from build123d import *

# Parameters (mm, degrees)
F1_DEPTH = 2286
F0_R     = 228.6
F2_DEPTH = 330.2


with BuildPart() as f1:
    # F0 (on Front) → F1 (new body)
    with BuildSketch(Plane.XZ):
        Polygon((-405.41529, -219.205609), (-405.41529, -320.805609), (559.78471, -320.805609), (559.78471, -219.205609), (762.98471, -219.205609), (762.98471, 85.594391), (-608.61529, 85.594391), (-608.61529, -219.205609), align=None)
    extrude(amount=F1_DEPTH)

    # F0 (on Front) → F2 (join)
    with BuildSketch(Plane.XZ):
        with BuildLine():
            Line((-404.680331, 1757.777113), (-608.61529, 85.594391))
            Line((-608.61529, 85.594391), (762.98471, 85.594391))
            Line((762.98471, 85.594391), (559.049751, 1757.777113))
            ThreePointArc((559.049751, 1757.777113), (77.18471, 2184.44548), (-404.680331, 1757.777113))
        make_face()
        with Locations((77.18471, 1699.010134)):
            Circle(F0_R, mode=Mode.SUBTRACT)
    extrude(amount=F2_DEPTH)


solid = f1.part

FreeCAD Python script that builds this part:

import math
import FreeCAD as App
import Part
import Sketcher

V = App.Vector
Q = App.Units.Quantity

doc = App.newDocument("Part")
body = doc.addObject("PartDesign::Body", "Body")

# Sketch on XZ plane
sketch1 = body.newObject("Sketcher::SketchObject", "Sketch")
sketch1.AttachmentSupport = (doc.getObject("XZ_Plane"), [""])
sketch1.MapMode = "FlatFace"
sketch1.addGeometry(Part.LineSegment(V(-405.41529, -219.205609, 0), V(-405.41529, -320.805609, 0)), False)
sketch1.addGeometry(Part.LineSegment(V(-405.41529, -320.805609, 0), V(559.78471, -320.805609, 0)), False)
sketch1.addGeometry(Part.LineSegment(V(559.78471, -320.805609, 0), V(559.78471, -219.205609, 0)), False)
sketch1.addGeometry(Part.LineSegment(V(559.78471, -219.205609, 0), V(762.98471, -219.205609, 0)), False)
sketch1.addGeometry(Part.LineSegment(V(762.98471, -219.205609, 0), V(762.98471, 85.594391, 0)), False)
sketch1.addGeometry(Part.LineSegment(V(762.98471, 85.594391, 0), V(-608.61529, 85.594391, 0)), False)
sketch1.addGeometry(Part.LineSegment(V(-608.61529, 85.594391, 0), V(-608.61529, -219.205609, 0)), False)
sketch1.addGeometry(Part.LineSegment(V(-608.61529, -219.205609, 0), V(-405.41529, -219.205609, 0)), False)
sketch1.addConstraint(Sketcher.Constraint("Coincident", 0, 2, 1, 1))
sketch1.addConstraint(Sketcher.Constraint("Coincident", 1, 2, 2, 1))
sketch1.addConstraint(Sketcher.Constraint("Coincident", 2, 2, 3, 1))
sketch1.addConstraint(Sketcher.Constraint("Coincident", 3, 2, 4, 1))
sketch1.addConstraint(Sketcher.Constraint("Coincident", 4, 2, 5, 1))
sketch1.addConstraint(Sketcher.Constraint("Coincident", 5, 2, 6, 1))
sketch1.addConstraint(Sketcher.Constraint("Coincident", 6, 2, 7, 1))
sketch1.addConstraint(Sketcher.Constraint("Coincident", 7, 2, 0, 1))
sketch1.addConstraint(Sketcher.Constraint("Vertical", 0))
sketch1.addConstraint(Sketcher.Constraint("Horizontal", 1))
sketch1.addConstraint(Sketcher.Constraint("Vertical", 2))
sketch1.addConstraint(Sketcher.Constraint("Horizontal", 3))
sketch1.addConstraint(Sketcher.Constraint("Vertical", 4))
sketch1.addConstraint(Sketcher.Constraint("Horizontal", 5))
sketch1.addConstraint(Sketcher.Constraint("Vertical", 6))
sketch1.addConstraint(Sketcher.Constraint("Horizontal", 7))
sketch1.addConstraint(Sketcher.Constraint("Horizontal", 3, 2, 6, 2))
sketch1.addConstraint(Sketcher.Constraint("Equal", 3, 7))
sketch1.addConstraint(Sketcher.Constraint("DistanceX", 1, 1, 1, 2, Q("38 in")))
sketch1.addConstraint(Sketcher.Constraint("DistanceX", 3, 1, 3, 2, Q("8 in")))
sketch1.addConstraint(Sketcher.Constraint("DistanceY", 0, 2, 0, 1, Q("4 in")))
sketch1.addConstraint(Sketcher.Constraint("DistanceY", 4, 1, 4, 2, Q("12 in")))
sketch1.addConstraint(Sketcher.Constraint("DistanceX", 0, 2, -1, 1, 405.41529))
sketch1.addConstraint(Sketcher.Constraint("DistanceY", 0, 2, -1, 1, 320.805609))
pad1 = body.newObject("PartDesign::Pad", "Pad")
pad1.Profile = sketch1
pad1.Length = Q("90 in")

# Sketch on XZ plane
sketch2 = body.newObject("Sketcher::SketchObject", "Sketch001")
sketch2.AttachmentSupport = (doc.getObject("XZ_Plane"), [""])
sketch2.MapMode = "FlatFace"
sketch2.addGeometry(Part.LineSegment(V(-404.680331, 1757.777113, 0), V(-608.61529, 85.594391, 0)), False)
sketch2.addGeometry(Part.LineSegment(V(-608.61529, 85.594391, 0), V(762.98471, 85.594391, 0)), False)
sketch2.addGeometry(Part.LineSegment(V(762.98471, 85.594391, 0), V(559.049751, 1757.777113, 0)), False)
sketch2.addGeometry(Part.ArcOfCircle(Part.Circle(V(77.18471, 1699.010134, 0), V(0, 0, 1), 485.435346), math.radians(6.953303), math.radians(173.046697)), False)
sketch2.addGeometry(Part.Circle(V(77.18471, 1699.010134, 0), V(0, 0, 1), 228.6), False)
sketch2.addConstraint(Sketcher.Constraint("Coincident", 0, 2, 1, 1))
sketch2.addConstraint(Sketcher.Constraint("Coincident", 1, 2, 2, 1))
sketch2.addConstraint(Sketcher.Constraint("Tangent", 2, 2, 3, 1))
sketch2.addConstraint(Sketcher.Constraint("Tangent", 3, 2, 0, 1))
sketch2.addConstraint(Sketcher.Constraint("Horizontal", 1))
sketch2.addConstraint(Sketcher.Constraint("Coincident", 4, 3, 3, 3))
sketch2.addConstraint(Sketcher.Constraint("Equal", 0, 2))
sketch2.addConstraint(Sketcher.Constraint("Diameter", 4, Q("18 in")))
sketch2.addConstraint(Sketcher.Constraint("DistanceX", 1, 1, 1, 2, Q("54 in")))
sketch2.addConstraint(Sketcher.Constraint("Radius", 3, 485.435346))
sketch2.addConstraint(Sketcher.Constraint("DistanceX", -1, 1, 3, 3, 77.18471))
sketch2.addConstraint(Sketcher.Constraint("DistanceY", -1, 1, 0, 2, 85.594391))
sketch2.addConstraint(Sketcher.Constraint("DistanceX", -1, 1, 2, 2, 559.049751))
pad2 = body.newObject("PartDesign::Pad", "Pad001")
pad2.Profile = sketch2
pad2.Length = Q("13 in")

doc.recompute()
